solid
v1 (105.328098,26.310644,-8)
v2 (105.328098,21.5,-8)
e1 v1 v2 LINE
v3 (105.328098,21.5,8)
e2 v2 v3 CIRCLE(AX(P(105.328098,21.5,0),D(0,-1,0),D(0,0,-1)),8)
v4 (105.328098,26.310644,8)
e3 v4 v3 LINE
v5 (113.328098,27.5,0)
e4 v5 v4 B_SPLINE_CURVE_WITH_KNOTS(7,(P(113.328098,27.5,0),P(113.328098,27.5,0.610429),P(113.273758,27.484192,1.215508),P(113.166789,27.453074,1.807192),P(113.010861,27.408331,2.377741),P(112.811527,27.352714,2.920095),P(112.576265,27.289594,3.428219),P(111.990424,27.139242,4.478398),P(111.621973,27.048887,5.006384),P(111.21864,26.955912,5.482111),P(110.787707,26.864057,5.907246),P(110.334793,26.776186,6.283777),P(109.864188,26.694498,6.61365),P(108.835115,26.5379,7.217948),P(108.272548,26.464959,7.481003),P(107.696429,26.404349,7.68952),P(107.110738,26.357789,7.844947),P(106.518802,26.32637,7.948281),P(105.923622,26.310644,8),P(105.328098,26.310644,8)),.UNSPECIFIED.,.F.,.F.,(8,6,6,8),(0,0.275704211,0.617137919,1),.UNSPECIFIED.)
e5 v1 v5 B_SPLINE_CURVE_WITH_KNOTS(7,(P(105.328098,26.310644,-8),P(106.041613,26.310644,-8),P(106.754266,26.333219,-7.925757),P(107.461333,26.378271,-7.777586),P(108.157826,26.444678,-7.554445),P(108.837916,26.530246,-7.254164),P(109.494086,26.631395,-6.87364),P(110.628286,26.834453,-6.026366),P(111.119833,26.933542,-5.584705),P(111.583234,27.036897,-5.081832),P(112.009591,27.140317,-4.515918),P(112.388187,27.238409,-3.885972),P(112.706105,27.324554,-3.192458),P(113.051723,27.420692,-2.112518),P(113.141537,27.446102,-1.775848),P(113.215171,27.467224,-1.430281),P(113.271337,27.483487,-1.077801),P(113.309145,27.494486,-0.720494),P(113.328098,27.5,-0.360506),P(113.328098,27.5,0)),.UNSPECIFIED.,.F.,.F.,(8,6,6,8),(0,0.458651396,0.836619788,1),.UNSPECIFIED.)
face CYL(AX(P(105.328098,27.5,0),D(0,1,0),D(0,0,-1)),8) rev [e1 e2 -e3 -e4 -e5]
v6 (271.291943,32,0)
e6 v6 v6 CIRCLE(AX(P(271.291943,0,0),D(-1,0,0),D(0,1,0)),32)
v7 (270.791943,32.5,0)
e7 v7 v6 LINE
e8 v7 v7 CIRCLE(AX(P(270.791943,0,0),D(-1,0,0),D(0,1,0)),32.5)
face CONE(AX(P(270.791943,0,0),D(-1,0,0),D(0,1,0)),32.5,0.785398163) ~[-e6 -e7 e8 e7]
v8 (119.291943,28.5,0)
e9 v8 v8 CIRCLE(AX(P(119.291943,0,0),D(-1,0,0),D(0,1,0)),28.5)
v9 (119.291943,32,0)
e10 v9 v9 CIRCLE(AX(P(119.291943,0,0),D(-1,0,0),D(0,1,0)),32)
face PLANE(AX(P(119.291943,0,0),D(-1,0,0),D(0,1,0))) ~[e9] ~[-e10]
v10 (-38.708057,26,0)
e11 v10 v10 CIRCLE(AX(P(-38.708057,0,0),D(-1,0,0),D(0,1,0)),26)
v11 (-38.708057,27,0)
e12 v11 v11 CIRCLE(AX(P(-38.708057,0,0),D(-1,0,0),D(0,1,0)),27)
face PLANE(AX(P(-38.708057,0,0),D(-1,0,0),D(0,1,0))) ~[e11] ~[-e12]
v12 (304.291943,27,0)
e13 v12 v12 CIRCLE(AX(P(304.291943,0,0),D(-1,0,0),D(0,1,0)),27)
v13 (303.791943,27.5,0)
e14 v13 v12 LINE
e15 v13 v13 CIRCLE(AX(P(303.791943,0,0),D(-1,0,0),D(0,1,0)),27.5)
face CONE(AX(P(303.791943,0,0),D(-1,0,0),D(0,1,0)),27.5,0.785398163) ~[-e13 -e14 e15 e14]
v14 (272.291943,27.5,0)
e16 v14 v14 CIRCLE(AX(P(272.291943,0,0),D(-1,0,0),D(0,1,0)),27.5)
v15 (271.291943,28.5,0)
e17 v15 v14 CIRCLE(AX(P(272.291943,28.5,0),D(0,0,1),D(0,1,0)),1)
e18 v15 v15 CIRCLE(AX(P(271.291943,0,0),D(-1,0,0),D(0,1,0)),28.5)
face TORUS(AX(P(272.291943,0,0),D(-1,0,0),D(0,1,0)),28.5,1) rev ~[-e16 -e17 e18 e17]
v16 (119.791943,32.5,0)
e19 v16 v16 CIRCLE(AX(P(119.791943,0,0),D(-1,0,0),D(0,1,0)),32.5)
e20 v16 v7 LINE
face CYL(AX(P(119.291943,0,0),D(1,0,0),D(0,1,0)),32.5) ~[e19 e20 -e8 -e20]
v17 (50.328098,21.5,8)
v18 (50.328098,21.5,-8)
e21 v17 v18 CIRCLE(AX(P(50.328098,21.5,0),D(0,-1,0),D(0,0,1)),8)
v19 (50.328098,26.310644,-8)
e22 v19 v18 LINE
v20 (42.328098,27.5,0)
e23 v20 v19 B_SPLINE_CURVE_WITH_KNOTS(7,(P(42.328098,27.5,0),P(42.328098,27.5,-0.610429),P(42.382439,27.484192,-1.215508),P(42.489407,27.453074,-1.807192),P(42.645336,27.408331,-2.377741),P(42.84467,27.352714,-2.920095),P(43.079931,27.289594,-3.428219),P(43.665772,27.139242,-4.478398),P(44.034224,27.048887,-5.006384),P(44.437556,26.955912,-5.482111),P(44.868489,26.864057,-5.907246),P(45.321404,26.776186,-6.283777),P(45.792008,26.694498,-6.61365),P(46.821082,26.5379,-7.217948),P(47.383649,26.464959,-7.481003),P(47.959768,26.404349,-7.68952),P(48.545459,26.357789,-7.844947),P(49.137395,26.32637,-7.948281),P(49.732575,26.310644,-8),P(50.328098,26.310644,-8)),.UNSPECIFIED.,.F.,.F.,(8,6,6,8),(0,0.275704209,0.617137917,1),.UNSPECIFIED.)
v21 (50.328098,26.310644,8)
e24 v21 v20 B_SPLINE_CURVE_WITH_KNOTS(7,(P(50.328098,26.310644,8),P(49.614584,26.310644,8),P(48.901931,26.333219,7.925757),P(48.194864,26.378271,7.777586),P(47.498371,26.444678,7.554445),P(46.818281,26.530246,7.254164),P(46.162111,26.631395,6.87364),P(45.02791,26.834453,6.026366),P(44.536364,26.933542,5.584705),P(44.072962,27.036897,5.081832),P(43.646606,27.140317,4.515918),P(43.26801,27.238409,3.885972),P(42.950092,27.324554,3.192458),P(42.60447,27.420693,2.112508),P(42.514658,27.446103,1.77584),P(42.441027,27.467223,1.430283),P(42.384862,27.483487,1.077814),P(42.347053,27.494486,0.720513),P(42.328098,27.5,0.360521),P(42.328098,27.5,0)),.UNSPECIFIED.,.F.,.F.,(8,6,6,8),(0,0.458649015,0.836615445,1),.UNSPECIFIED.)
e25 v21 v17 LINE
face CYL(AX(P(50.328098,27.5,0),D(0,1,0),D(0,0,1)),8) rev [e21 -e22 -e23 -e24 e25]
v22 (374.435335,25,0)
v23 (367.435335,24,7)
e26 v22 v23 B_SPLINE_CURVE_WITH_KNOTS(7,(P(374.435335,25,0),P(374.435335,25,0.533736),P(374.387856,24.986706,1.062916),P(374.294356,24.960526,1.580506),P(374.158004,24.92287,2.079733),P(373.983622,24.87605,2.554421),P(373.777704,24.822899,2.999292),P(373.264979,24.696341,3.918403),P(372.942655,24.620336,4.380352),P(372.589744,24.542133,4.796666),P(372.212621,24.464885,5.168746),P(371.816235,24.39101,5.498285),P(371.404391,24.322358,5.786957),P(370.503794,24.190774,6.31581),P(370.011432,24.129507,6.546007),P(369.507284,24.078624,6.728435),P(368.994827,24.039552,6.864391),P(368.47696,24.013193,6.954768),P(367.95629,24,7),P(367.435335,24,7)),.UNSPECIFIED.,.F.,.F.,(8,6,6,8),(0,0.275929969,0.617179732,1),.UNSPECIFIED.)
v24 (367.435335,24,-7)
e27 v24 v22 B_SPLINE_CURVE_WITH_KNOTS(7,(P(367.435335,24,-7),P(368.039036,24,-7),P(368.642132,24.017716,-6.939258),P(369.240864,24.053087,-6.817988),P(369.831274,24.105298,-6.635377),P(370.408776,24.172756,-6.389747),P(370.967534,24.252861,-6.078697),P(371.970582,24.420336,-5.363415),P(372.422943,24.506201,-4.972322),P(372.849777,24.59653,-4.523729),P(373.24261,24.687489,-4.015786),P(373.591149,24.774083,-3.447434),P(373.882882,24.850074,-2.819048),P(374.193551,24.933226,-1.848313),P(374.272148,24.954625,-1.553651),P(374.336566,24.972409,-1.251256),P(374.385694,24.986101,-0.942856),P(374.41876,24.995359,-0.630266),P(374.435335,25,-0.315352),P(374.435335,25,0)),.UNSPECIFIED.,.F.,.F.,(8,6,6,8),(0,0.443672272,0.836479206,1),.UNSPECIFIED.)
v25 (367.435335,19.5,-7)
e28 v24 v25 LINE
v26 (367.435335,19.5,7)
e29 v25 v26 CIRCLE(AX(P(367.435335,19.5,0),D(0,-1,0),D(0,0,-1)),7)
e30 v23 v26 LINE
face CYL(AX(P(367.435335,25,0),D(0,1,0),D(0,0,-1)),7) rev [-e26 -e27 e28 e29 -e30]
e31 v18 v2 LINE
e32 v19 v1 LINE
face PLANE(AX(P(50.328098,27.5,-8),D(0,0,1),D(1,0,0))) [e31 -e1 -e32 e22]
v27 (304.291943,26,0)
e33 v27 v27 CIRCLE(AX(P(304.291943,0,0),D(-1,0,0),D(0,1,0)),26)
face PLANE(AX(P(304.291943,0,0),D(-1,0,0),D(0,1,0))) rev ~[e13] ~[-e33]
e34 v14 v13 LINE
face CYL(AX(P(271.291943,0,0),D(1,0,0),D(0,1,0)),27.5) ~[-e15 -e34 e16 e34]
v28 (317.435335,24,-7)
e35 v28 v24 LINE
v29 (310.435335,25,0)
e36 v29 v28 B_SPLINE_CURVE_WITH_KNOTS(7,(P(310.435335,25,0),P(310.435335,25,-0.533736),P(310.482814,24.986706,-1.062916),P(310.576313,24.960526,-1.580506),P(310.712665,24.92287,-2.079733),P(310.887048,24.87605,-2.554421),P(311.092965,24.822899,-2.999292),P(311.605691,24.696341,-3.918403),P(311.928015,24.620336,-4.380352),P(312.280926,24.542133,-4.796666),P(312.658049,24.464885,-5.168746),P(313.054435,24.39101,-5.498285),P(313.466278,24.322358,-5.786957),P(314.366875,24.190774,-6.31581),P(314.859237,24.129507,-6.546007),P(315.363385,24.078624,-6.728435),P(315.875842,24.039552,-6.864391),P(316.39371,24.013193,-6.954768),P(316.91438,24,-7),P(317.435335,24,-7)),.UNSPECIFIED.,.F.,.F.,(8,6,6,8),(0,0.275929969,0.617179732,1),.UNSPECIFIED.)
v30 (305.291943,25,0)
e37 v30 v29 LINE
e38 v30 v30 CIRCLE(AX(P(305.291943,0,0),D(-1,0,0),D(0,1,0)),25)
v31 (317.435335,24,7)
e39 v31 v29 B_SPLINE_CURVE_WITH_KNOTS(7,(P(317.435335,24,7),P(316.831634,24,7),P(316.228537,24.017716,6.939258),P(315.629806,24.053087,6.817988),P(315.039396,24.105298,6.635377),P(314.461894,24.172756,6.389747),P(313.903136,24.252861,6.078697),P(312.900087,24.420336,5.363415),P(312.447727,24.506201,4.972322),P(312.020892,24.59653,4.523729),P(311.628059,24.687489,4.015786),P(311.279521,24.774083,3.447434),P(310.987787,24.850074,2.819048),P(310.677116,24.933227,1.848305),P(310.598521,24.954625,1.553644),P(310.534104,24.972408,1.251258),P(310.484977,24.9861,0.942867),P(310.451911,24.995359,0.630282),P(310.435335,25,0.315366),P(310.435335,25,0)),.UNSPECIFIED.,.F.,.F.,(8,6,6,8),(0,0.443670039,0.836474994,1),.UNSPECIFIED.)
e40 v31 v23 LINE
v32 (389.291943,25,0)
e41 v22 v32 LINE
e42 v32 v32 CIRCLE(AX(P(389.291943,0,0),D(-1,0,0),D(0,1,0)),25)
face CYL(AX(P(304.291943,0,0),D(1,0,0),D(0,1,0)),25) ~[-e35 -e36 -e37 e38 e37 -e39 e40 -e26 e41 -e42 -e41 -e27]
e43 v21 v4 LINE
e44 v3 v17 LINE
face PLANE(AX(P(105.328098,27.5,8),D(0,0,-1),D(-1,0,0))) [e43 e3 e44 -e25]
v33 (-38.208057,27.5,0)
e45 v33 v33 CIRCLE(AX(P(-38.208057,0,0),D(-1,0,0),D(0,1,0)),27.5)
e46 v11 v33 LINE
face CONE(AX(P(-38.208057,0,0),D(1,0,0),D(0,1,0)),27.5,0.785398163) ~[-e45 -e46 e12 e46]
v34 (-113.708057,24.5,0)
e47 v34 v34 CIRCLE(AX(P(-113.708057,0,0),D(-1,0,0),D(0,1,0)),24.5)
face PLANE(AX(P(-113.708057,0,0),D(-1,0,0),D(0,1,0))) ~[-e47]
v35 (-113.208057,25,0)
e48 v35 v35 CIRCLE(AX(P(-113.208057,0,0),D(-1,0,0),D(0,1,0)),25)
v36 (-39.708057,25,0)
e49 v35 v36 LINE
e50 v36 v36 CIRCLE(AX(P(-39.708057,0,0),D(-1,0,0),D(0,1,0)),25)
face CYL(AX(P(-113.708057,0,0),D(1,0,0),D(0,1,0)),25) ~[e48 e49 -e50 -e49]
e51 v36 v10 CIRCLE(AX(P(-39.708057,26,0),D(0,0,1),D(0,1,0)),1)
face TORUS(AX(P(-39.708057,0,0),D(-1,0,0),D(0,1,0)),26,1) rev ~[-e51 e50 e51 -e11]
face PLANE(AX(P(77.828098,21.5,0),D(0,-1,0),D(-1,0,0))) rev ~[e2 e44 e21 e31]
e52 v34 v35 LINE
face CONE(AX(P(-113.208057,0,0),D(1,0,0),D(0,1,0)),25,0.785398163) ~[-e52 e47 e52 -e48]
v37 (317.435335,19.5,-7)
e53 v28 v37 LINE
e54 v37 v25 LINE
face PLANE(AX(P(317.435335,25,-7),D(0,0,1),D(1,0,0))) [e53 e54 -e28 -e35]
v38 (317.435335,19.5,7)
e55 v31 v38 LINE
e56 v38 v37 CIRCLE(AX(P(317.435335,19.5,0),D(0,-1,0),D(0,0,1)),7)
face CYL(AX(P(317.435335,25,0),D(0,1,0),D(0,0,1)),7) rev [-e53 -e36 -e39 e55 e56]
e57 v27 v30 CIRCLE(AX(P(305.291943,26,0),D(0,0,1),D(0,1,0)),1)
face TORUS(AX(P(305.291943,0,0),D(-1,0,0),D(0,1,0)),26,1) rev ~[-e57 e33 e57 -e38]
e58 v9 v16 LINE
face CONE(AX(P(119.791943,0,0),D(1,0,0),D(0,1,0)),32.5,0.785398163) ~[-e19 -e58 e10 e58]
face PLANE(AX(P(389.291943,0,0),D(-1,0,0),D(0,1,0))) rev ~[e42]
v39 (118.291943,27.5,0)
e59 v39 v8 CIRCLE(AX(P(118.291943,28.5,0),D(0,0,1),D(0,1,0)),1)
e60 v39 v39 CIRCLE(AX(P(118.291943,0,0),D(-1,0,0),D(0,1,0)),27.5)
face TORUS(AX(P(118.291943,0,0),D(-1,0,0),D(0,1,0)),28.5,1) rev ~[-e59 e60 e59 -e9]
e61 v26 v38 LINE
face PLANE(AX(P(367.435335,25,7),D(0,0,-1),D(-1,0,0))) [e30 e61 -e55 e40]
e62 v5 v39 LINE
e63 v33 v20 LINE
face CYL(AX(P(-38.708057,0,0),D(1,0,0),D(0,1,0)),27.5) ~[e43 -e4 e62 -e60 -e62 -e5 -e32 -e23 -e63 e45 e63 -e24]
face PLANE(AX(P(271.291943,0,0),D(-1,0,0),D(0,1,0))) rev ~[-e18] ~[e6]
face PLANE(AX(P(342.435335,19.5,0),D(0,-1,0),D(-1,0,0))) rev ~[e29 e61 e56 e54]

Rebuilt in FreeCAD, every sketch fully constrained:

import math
import FreeCAD as App
import Part
import Sketcher
from FreeCAD import Vector
Q = App.Units.Quantity


def edges_at(feature, points):
    """Names of the edges that pass closest to the given points."""
    edges = feature.Shape.Edges
    near = lambda p: min(range(len(edges)), key=lambda i: edges[i].distToShape(Part.Vertex(*p))[0])
    return sorted({f"Edge{near(p) + 1}" for p in points})

doc = App.newDocument("Part")
params = doc.addObject("Spreadsheet::Sheet", "Params")
for row, (alias, value) in enumerate([
    ("sketch1_width", "503 mm"),
    ("sketch1_width2", "85 mm"),
    ("sketch1_width3", "33 mm"),
    ("sketch1_width4", "152 mm"),
    ("sketch1_width5", "158 mm"),
    ("revolution_angle", "360 deg"),
    ("chamfer_size", "0.5 mm"),
    ("fillet_radius", "1 mm"),
    ("sketch2_radius", "8 mm"),
    ("sketch2_width", "55 mm"),
    ("pocket1_length", "6 mm"),
    ("sketch3_radius", "7 mm"),
    ("sketch3_width", "50 mm"),
    ("pocket2_length", "5.5 mm"),
], start=1):
    params.set(f"A{row}", alias)
    params.set(f"B{row}", "=" + value)
    params.setAlias(f"B{row}", alias)

body = doc.addObject("PartDesign::Body", "Body")

# Sketch on XY plane
sketch1 = body.newObject("Sketcher::SketchObject", "Sketch")
sketch1.AttachmentSupport = (doc.getObject("XY_Plane"), [""])
sketch1.MapMode = "FlatFace"
sketch1.addGeometry(Part.LineSegment(Vector(-113.708057, 25, 0), Vector(-113.708057, 0, 0)), False)
sketch1.addGeometry(Part.LineSegment(Vector(-113.708057, 0, 0), Vector(389.291943, 0, 0)), False)
sketch1.addGeometry(Part.LineSegment(Vector(389.291943, 0, 0), Vector(389.291943, 25, 0)), False)
sketch1.addGeometry(Part.LineSegment(Vector(389.291943, 25, 0), Vector(304.291943, 25, 0)), False)
sketch1.addGeometry(Part.LineSegment(Vector(304.291943, 25, 0), Vector(304.291943, 27.5, 0)), False)
sketch1.addGeometry(Part.LineSegment(Vector(304.291943, 27.5, 0), Vector(271.291943, 27.5, 0)), False)
sketch1.addGeometry(Part.LineSegment(Vector(271.291943, 27.5, 0), Vector(271.291943, 32.5, 0)), False)
sketch1.addGeometry(Part.LineSegment(Vector(271.291943, 32.5, 0), Vector(119.291943, 32.5, 0)), False)
sketch1.addGeometry(Part.LineSegment(Vector(119.291943, 32.5, 0), Vector(119.291943, 27.5, 0)), False)
sketch1.addGeometry(Part.LineSegment(Vector(119.291943, 27.5, 0), Vector(-38.708057, 27.5, 0)), False)
sketch1.addGeometry(Part.LineSegment(Vector(-38.708057, 27.5, 0), Vector(-38.708057, 25, 0)), False)
sketch1.addGeometry(Part.LineSegment(Vector(-38.708057, 25, 0), Vector(-113.708057, 25, 0)), False)
sketch1.addConstraint(Sketcher.Constraint("Coincident", 0, 2, 1, 1))
sketch1.addConstraint(Sketcher.Constraint("Coincident", 1, 2, 2, 1))
sketch1.addConstraint(Sketcher.Constraint("Coincident", 2, 2, 3, 1))
sketch1.addConstraint(Sketcher.Constraint("Coincident", 3, 2, 4, 1))
sketch1.addConstraint(Sketcher.Constraint("Coincident", 4, 2, 5, 1))
sketch1.addConstraint(Sketcher.Constraint("Coincident", 5, 2, 6, 1))
sketch1.addConstraint(Sketcher.Constraint("Coincident", 6, 2, 7, 1))
sketch1.addConstraint(Sketcher.Constraint("Coincident", 7, 2, 8, 1))
sketch1.addConstraint(Sketcher.Constraint("Coincident", 8, 2, 9, 1))
sketch1.addConstraint(Sketcher.Constraint("Coincident", 9, 2, 10, 1))
sketch1.addConstraint(Sketcher.Constraint("Coincident", 10, 2, 11, 1))
sketch1.addConstraint(Sketcher.Constraint("Coincident", 11, 2, 0, 1))
sketch1.addConstraint(Sketcher.Constraint("Vertical", 0))
sketch1.addConstraint(Sketcher.Constraint("Horizontal", 1))
sketch1.addConstraint(Sketcher.Constraint("Vertical", 2))
sketch1.addConstraint(Sketcher.Constraint("Horizontal", 3))
sketch1.addConstraint(Sketcher.Constraint("Vertical", 4))
sketch1.addConstraint(Sketcher.Constraint("Horizontal", 5))
sketch1.addConstraint(Sketcher.Constraint("Vertical", 6))
sketch1.addConstraint(Sketcher.Constraint("Horizontal", 7))
sketch1.addConstraint(Sketcher.Constraint("Vertical", 8))
sketch1.addConstraint(Sketcher.Constraint("Horizontal", 9))
sketch1.addConstraint(Sketcher.Constraint("Vertical", 10))
sketch1.addConstraint(Sketcher.Constraint("Horizontal", 11))
sketch1.addConstraint(Sketcher.Constraint("PointOnObject", 0, 2, -1))
sketch1.addConstraint(Sketcher.Constraint("Horizontal", 5, 2, 8, 2))
sketch1.addConstraint(Sketcher.Constraint("Horizontal", 3, 2, 10, 2))
sketch1.addConstraint(Sketcher.Constraint("DistanceX", 1, 1, 1, 2, Q("503 mm")))
sketch1.addConstraint(Sketcher.Constraint("DistanceX", 3, 2, 3, 1, Q("85 mm")))
sketch1.addConstraint(Sketcher.Constraint("DistanceX", 5, 2, 5, 1, Q("33 mm")))
sketch1.addConstraint(Sketcher.Constraint("DistanceX", 7, 2, 7, 1, Q("152 mm")))
sketch1.addConstraint(Sketcher.Constraint("DistanceX", 9, 2, 9, 1, Q("158 mm")))
sketch1.addConstraint(Sketcher.Constraint("DistanceY", 0, 2, 0, 1, Q("25 mm")))
sketch1.addConstraint(Sketcher.Constraint("DistanceY", 6, 1, 6, 2, Q("5 mm")))
sketch1.addConstraint(Sketcher.Constraint("DistanceY", 4, 1, 4, 2, Q("2.5 mm")))
sketch1.addConstraint(Sketcher.Constraint("DistanceX", 0, 2, -1, 1, Q("113.708057 mm")))
sketch1.setExpression("Constraints[27]", "Params.sketch1_width")
sketch1.setExpression("Constraints[28]", "Params.sketch1_width2")
sketch1.setExpression("Constraints[29]", "Params.sketch1_width3")
sketch1.setExpression("Constraints[30]", "Params.sketch1_width4")
sketch1.setExpression("Constraints[31]", "Params.sketch1_width5")
revolution = body.newObject("PartDesign::Revolution", "Revolution")
revolution.Profile = sketch1
revolution.ReferenceAxis = (sketch1, ["H_Axis"])
revolution.setExpression("Angle", "Params.revolution_angle")
doc.recompute()

chamfer = body.newObject("PartDesign::Chamfer", "Chamfer")
chamfer.Base = (revolution, edges_at(revolution, [
    (304.292, -27.5, 0),
    (271.292, -32.5, 0),
    (119.292, -32.5, 0),
    (-38.708, -27.5, 0),
    (-113.708, -25, 0),
]))
chamfer.setExpression("Size", "Params.chamfer_size")
doc.recompute()

fillet = body.newObject("PartDesign::Fillet", "Fillet")
fillet.Base = (chamfer, edges_at(chamfer, [
    (304.292, -25, 0),
    (271.292, -27.5, 0),
    (119.292, -27.5, 0),
    (-38.708, -25, 0),
]))
fillet.setExpression("Radius", "Params.fillet_radius")

# Sketch on XZ plane
sketch2 = body.newObject("Sketcher::SketchObject", "Sketch001")
sketch2.AttachmentSupport = (doc.getObject("XZ_Plane"), [""])
sketch2.MapMode = "FlatFace"
sketch2.AttachmentOffset = App.Placement(Vector(0, 0, -27.5), App.Rotation())
sketch2.addGeometry(Part.LineSegment(Vector(105.328098, -8, 0), Vector(50.328098, -8, 0)), False)
sketch2.addGeometry(Part.ArcOfCircle(Part.Circle(Vector(50.328098, 0, 0), Vector(0, 0, 1), 8), math.radians(90), math.radians(270)), False)
sketch2.addGeometry(Part.LineSegment(Vector(50.328098, 8, 0), Vector(105.328098, 8, 0)), False)
sketch2.addGeometry(Part.ArcOfCircle(Part.Circle(Vector(105.328098, 0, 0), Vector(0, 0, 1), 8), math.radians(-90), math.radians(90)), False)
sketch2.addConstraint(Sketcher.Constraint("Tangent", 0, 2, 1, 2))
sketch2.addConstraint(Sketcher.Constraint("Tangent", 1, 1, 2, 1))
sketch2.addConstraint(Sketcher.Constraint("Tangent", 2, 2, 3, 2))
sketch2.addConstraint(Sketcher.Constraint("Tangent", 3, 1, 0, 1))
sketch2.addConstraint(Sketcher.Constraint("Horizontal", 0))
sketch2.addConstraint(Sketcher.Constraint("Horizontal", 2))
sketch2.addConstraint(Sketcher.Constraint("PointOnObject", 1, 3, -1))
sketch2.addConstraint(Sketcher.Constraint("Radius", 1, Q("8 mm")))
sketch2.addConstraint(Sketcher.Constraint("DistanceX", 0, 2, 0, 1, Q("55 mm")))
sketch2.addConstraint(Sketcher.Constraint("DistanceX", -1, 1, 1, 3, Q("50.328098 mm")))
sketch2.setExpression("Constraints[7]", "Params.sketch2_radius")
sketch2.setExpression("Constraints[8]", "Params.sketch2_width")
pocket1 = body.newObject("PartDesign::Pocket", "Pocket")
pocket1.Profile = sketch2
pocket1.setExpression("Length", "Params.pocket1_length")
pocket1.Reversed = True

# Sketch on XZ plane
sketch3 = body.newObject("Sketcher::SketchObject", "Sketch002")
sketch3.AttachmentSupport = (doc.getObject("XZ_Plane"), [""])
sketch3.MapMode = "FlatFace"
sketch3.AttachmentOffset = App.Placement(Vector(0, 0, -25), App.Rotation())
sketch3.addGeometry(Part.LineSegment(Vector(367.435335, -7, 0), Vector(317.435335, -7, 0)), False)
sketch3.addGeometry(Part.ArcOfCircle(Part.Circle(Vector(317.435335, 0, 0), Vector(0, 0, 1), 7), math.radians(90), math.radians(270)), False)
sketch3.addGeometry(Part.LineSegment(Vector(317.435335, 7, 0), Vector(367.435335, 7, 0)), False)
sketch3.addGeometry(Part.ArcOfCircle(Part.Circle(Vector(367.435335, 0, 0), Vector(0, 0, 1), 7), math.radians(-90), math.radians(90)), False)
sketch3.addConstraint(Sketcher.Constraint("Tangent", 0, 2, 1, 2))
sketch3.addConstraint(Sketcher.Constraint("Tangent", 1, 1, 2, 1))
sketch3.addConstraint(Sketcher.Constraint("Tangent", 2, 2, 3, 2))
sketch3.addConstraint(Sketcher.Constraint("Tangent", 3, 1, 0, 1))
sketch3.addConstraint(Sketcher.Constraint("Horizontal", 0))
sketch3.addConstraint(Sketcher.Constraint("Horizontal", 2))
sketch3.addConstraint(Sketcher.Constraint("PointOnObject", 1, 3, -1))
sketch3.addConstraint(Sketcher.Constraint("Radius", 1, Q("7 mm")))
sketch3.addConstraint(Sketcher.Constraint("DistanceX", 0, 2, 0, 1, Q("50 mm")))
sketch3.addConstraint(Sketcher.Constraint("DistanceX", -1, 1, 1, 3, Q("317.435335 mm")))
sketch3.setExpression("Constraints[7]", "Params.sketch3_radius")
sketch3.setExpression("Constraints[8]", "Params.sketch3_width")
pocket2 = body.newObject("PartDesign::Pocket", "Pocket001")
pocket2.Profile = sketch3
pocket2.setExpression("Length", "Params.pocket2_length")
pocket2.Reversed = True

doc.recompute()
